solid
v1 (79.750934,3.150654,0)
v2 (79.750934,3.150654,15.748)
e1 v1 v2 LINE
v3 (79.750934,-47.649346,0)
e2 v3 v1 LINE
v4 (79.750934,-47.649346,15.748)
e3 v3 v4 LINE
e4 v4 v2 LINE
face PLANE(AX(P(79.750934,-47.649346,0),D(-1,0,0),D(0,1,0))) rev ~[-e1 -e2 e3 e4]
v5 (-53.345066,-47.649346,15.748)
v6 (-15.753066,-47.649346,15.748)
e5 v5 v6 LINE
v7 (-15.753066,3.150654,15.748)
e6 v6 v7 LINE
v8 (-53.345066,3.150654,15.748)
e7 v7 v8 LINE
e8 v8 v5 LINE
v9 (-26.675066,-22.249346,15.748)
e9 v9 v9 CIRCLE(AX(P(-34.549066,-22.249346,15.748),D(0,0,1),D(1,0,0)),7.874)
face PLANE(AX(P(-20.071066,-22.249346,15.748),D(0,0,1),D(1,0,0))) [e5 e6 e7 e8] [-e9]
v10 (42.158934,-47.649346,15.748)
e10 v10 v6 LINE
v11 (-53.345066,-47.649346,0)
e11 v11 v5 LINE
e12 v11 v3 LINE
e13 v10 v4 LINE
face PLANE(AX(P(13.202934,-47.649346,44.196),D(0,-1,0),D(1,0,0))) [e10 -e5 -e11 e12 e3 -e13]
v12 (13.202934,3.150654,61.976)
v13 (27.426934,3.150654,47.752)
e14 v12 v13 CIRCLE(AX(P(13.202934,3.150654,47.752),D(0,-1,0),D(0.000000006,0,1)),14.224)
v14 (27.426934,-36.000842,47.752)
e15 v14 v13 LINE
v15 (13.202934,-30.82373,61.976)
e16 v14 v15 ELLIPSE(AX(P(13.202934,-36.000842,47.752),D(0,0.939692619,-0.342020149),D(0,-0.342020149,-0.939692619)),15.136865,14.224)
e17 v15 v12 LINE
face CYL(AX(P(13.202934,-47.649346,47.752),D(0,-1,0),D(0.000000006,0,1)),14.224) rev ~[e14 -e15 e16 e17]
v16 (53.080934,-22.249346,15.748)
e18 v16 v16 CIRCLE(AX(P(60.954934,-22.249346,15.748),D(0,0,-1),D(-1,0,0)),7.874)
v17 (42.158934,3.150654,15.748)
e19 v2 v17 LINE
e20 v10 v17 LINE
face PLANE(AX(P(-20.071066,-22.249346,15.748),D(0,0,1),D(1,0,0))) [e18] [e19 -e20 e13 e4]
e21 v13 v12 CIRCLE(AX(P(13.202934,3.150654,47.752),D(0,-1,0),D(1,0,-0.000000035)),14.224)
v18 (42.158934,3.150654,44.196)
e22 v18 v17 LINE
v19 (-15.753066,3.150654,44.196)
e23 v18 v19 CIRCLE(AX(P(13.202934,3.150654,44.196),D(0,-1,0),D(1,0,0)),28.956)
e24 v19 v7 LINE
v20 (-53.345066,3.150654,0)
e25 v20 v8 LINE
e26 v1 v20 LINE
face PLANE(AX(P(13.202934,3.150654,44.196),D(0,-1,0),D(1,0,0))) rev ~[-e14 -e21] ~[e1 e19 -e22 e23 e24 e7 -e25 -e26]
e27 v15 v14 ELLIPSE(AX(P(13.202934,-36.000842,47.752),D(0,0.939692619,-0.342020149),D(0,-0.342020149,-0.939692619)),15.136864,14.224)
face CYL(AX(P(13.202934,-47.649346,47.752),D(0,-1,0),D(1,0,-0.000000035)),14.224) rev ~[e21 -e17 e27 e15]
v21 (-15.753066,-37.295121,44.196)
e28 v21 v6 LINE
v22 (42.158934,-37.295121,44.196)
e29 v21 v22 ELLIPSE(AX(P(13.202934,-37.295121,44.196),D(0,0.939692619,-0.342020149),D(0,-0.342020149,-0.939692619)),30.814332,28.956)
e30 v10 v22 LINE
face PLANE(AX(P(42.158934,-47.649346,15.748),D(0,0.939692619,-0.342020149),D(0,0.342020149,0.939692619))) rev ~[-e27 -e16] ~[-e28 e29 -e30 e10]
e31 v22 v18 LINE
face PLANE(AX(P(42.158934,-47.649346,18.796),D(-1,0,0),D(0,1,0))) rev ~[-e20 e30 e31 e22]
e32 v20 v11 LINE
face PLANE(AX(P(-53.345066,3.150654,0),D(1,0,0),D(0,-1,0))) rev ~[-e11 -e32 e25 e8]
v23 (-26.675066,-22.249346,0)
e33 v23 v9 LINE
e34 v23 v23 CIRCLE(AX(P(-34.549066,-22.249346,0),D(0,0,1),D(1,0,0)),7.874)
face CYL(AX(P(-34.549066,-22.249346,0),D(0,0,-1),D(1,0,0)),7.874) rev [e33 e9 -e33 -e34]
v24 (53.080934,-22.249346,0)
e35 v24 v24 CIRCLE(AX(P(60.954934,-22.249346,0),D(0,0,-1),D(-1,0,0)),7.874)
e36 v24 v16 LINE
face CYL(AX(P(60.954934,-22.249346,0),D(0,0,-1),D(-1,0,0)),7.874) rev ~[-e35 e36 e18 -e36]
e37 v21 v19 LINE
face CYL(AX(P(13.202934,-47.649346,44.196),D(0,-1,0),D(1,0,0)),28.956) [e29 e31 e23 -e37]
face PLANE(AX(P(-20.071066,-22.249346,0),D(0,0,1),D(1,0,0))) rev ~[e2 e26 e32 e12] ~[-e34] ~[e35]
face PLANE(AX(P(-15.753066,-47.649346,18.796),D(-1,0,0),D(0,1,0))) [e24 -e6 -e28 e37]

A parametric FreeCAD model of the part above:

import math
import FreeCAD as App
import Part
import Sketcher
Q = App.Units.Quantity

doc = App.newDocument("Part")
body = doc.addObject("PartDesign::Body", "Body")

# Sketch on XY plane
sketch1 = doc.addObject("Sketcher::SketchObject", "Sketch")
body.addObject(sketch1)
sketch1.AttachmentSupport = (doc.XY_Plane, [""])
sketch1.MapMode = "FlatFace"
sketch1.addGeometry(Part.LineSegment(App.Vector(-53, 3, 0), App.Vector(-53, -48, 0)), False)
sketch1.addGeometry(Part.LineSegment(App.Vector(-53, -48, 0), App.Vector(80, -48, 0)), False)
sketch1.addGeometry(Part.LineSegment(App.Vector(80, -48, 0), App.Vector(80, 3, 0)), False)
sketch1.addGeometry(Part.LineSegment(App.Vector(80, 3, 0), App.Vector(-53, 3, 0)), False)
sketch1.addGeometry(Part.Circle(App.Vector(61, -22, 0), App.Vector(0, 0, 1), 8), False)
sketch1.addGeometry(Part.Circle(App.Vector(-35, -22, 0), App.Vector(0, 0, 1), 8), False)
sketch1.addConstraint(Sketcher.Constraint("Coincident", 0, 2, 1, 1))
sketch1.addConstraint(Sketcher.Constraint("Coincident", 1, 2, 2, 1))
sketch1.addConstraint(Sketcher.Constraint("Coincident", 2, 2, 3, 1))
sketch1.addConstraint(Sketcher.Constraint("Coincident", 3, 2, 0, 1))
sketch1.addConstraint(Sketcher.Constraint("Vertical", 0))
sketch1.addConstraint(Sketcher.Constraint("Horizontal", 1))
sketch1.addConstraint(Sketcher.Constraint("Vertical", 2))
sketch1.addConstraint(Sketcher.Constraint("Horizontal", 3))
sketch1.addConstraint(Sketcher.Constraint("Equal", 4, 5))
sketch1.addConstraint(Sketcher.Constraint("Horizontal", 4, 3, 5, 3))
sketch1.addConstraint(Sketcher.Constraint("Diameter", 4, Q("0.62 in")))
sketch1.addConstraint(Sketcher.Constraint("DistanceY", 0, 2, 0, 1, Q("2 in")))
sketch1.addConstraint(Sketcher.Constraint("DistanceY", 0, 2, 5, 3, Q("1 in")))
sketch1.addConstraint(Sketcher.Constraint("DistanceX", 1, 1, 1, 2, Q("5.24 in")))
sketch1.addConstraint(Sketcher.Constraint("DistanceX", 0, 2, 4, 3, Q("4.5 in")))
sketch1.addConstraint(Sketcher.Constraint("DistanceX", 5, 3, 1, 2, Q("4.5 in")))
sketch1.addConstraint(Sketcher.Constraint("DistanceX", -1, 1, 4, 3, Q("60.954934 mm")))
sketch1.addConstraint(Sketcher.Constraint("DistanceY", 4, 3, -1, 1, Q("22.249346 mm")))
pad1 = doc.addObject("PartDesign::Pad", "Pad")
body.addObject(pad1)
pad1.Profile = sketch1
pad1.Length = Q("0.62 in")

# Sketch on XY plane
sketch2 = doc.addObject("Sketcher::SketchObject", "Sketch001")
body.addObject(sketch2)
sketch2.AttachmentSupport = (doc.XY_Plane, [""])
sketch2.MapMode = "FlatFace"
sketch2.AttachmentOffset = App.Placement(App.Vector(0, 0, 0.62 * 25.4), App.Rotation())
sketch2.addGeometry(Part.LineSegment(App.Vector(-16, 3, 0), App.Vector(-16, -48, 0)), False)
sketch2.addGeometry(Part.LineSegment(App.Vector(-16, -48, 0), App.Vector(42, -48, 0)), False)
sketch2.addGeometry(Part.LineSegment(App.Vector(42, -48, 0), App.Vector(42, 3, 0)), False)
sketch2.addGeometry(Part.LineSegment(App.Vector(42, 3, 0), App.Vector(-16, 3, 0)), False)
sketch2.addConstraint(Sketcher.Constraint("Coincident", 0, 2, 1, 1))
sketch2.addConstraint(Sketcher.Constraint("Coincident", 1, 2, 2, 1))
sketch2.addConstraint(Sketcher.Constraint("Coincident", 2, 2, 3, 1))
sketch2.addConstraint(Sketcher.Constraint("Coincident", 3, 2, 0, 1))
sketch2.addConstraint(Sketcher.Constraint("Vertical", 0))
sketch2.addConstraint(Sketcher.Constraint("Horizontal", 1))
sketch2.addConstraint(Sketcher.Constraint("Vertical", 2))
sketch2.addConstraint(Sketcher.Constraint("Horizontal", 3))
sketch2.addConstraint(Sketcher.Constraint("DistanceY", 0, 2, 0, 1, Q("2 in")))
sketch2.addConstraint(Sketcher.Constraint("DistanceX", 1, 1, 1, 2, Q("2.28 in")))
sketch2.addConstraint(Sketcher.Constraint("DistanceX", 0, 2, -1, 1, Q("15.753066 mm")))
sketch2.addConstraint(Sketcher.Constraint("DistanceY", 0, 2, -1, 1, Q("47.649346 mm")))
pad2 = doc.addObject("PartDesign::Pad", "Pad001")
body.addObject(pad2)
pad2.Profile = sketch2
pad2.Length = Q("0.12 in")

# Sketch on XY plane
sketch3 = doc.addObject("Sketcher::SketchObject", "Sketch002")
body.addObject(sketch3)
sketch3.AttachmentSupport = (doc.XY_Plane, [""])
sketch3.MapMode = "FlatFace"
sketch3.AttachmentOffset = App.Placement(App.Vector(0, 0, 0.74 * 25.4), App.Rotation())
sketch3.addGeometry(Part.LineSegment(App.Vector(-16, 3, 0), App.Vector(-16, -48, 0)), False)
sketch3.addGeometry(Part.LineSegment(App.Vector(-16, -48, 0), App.Vector(42, -48, 0)), False)
sketch3.addGeometry(Part.LineSegment(App.Vector(42, -48, 0), App.Vector(42, 3, 0)), False)
sketch3.addGeometry(Part.LineSegment(App.Vector(42, 3, 0), App.Vector(-16, 3, 0)), False)
sketch3.addConstraint(Sketcher.Constraint("Coincident", 0, 2, 1, 1))
sketch3.addConstraint(Sketcher.Constraint("Coincident", 1, 2, 2, 1))
sketch3.addConstraint(Sketcher.Constraint("Coincident", 2, 2, 3, 1))
sketch3.addConstraint(Sketcher.Constraint("Coincident", 3, 2, 0, 1))
sketch3.addConstraint(Sketcher.Constraint("Vertical", 0))
sketch3.addConstraint(Sketcher.Constraint("Horizontal", 1))
sketch3.addConstraint(Sketcher.Constraint("Vertical", 2))
sketch3.addConstraint(Sketcher.Constraint("Horizontal", 3))
sketch3.addConstraint(Sketcher.Constraint("DistanceY", 0, 2, 0, 1, Q("2 in")))
sketch3.addConstraint(Sketcher.Constraint("DistanceX", 1, 1, 1, 2, Q("2.28 in")))
sketch3.addConstraint(Sketcher.Constraint("DistanceX", 0, 2, -1, 1, Q("15.753066 mm")))
sketch3.addConstraint(Sketcher.Constraint("DistanceY", 0, 2, -1, 1, Q("47.649346 mm")))
pad3 = doc.addObject("PartDesign::Pad", "Pad002")
body.addObject(pad3)
pad3.Profile = sketch3
pad3.Length = Q("1 in")

# Sketch on XZ plane
sketch4 = doc.addObject("Sketcher::SketchObject", "Sketch003")
body.addObject(sketch4)
sketch4.AttachmentSupport = (doc.XZ_Plane, [""])
sketch4.MapMode = "FlatFace"
sketch4.AttachmentOffset = App.Placement(App.Vector(0, 0, 47.649346), App.Rotation())
sketch4.addGeometry(Part.Circle(App.Vector(13, 44, 0), App.Vector(0, 0, 1), 29), False)
sketch4.addConstraint(Sketcher.Constraint("Diameter", 0, Q("2.28 in")))
sketch4.addConstraint(Sketcher.Constraint("DistanceY", -1, 1, 0, 3, Q("1.74 in")))
sketch4.addConstraint(Sketcher.Constraint("DistanceX", -1, 1, 0, 3, Q("13.202934 mm")))
pad4 = doc.addObject("PartDesign::Pad", "Pad003")
body.addObject(pad4)
pad4.Profile = sketch4
pad4.Length = Q("2 in")
pad4.Reversed = True

# Sketch on XZ plane
sketch5 = doc.addObject("Sketcher::SketchObject", "Sketch004")
body.addObject(sketch5)
sketch5.AttachmentSupport = (doc.XZ_Plane, [""])
sketch5.MapMode = "FlatFace"
sketch5.AttachmentOffset = App.Placement(App.Vector(0, 0, 47.649346), App.Rotation())
sketch5.addGeometry(Part.ArcOfCircle(Part.Circle(App.Vector(13, 48, 0), App.Vector(0, 0, 1), 14), math.radians(90), math.radians(360)), False)
sketch5.addGeometry(Part.ArcOfCircle(Part.Circle(App.Vector(13, 48, 0), App.Vector(0, 0, 1), 14), math.radians(0), math.radians(90)), False)
sketch5.addConstraint(Sketcher.Constraint("Tangent", 0, 1, 1, 2))
sketch5.addConstraint(Sketcher.Constraint("Coincident", 1, 1, 0, 2))
sketch5.addConstraint(Sketcher.Constraint("Horizontal", 0, 3, 1, 1))
sketch5.addConstraint(Sketcher.Constraint("Vertical", 1, 3, 0, 1))
sketch5.addConstraint(Sketcher.Constraint("Radius", 0, Q("0.56 in")))
sketch5.addConstraint(Sketcher.Constraint("DistanceY", -1, 1, 0, 3, Q("1.88 in")))
sketch5.addConstraint(Sketcher.Constraint("DistanceX", -1, 1, 0, 3, Q("13.202934 mm")))
pocket1 = doc.addObject("PartDesign::Pocket", "Pocket")
body.addObject(pocket1)
pocket1.Profile = sketch5
pocket1.Length = Q("2 in")

# Sketch on YZ plane
sketch6 = doc.addObject("Sketcher::SketchObject", "Sketch005")
body.addObject(sketch6)
sketch6.AttachmentSupport = (doc.YZ_Plane, [""])
sketch6.MapMode = "FlatFace"
sketch6.AttachmentOffset = App.Placement(App.Vector(0, 0, 42.158934), App.Rotation())
sketch6.addGeometry(Part.LineSegment(App.Vector(-48, 74, 0), App.Vector(-48, 16, 0)), False)
sketch6.addGeometry(Part.LineSegment(App.Vector(-48, 16, 0), App.Vector(-27, 74, 0)), False)
sketch6.addGeometry(Part.LineSegment(App.Vector(-27, 74, 0), App.Vector(-48, 74, 0)), False)
sketch6.addConstraint(Sketcher.Constraint("Coincident", 0, 2, 1, 1))
sketch6.addConstraint(Sketcher.Constraint("Coincident", 1, 2, 2, 1))
sketch6.addConstraint(Sketcher.Constraint("Coincident", 2, 2, 0, 1))
sketch6.addConstraint(Sketcher.Constraint("Vertical", 0))
sketch6.addConstraint(Sketcher.Constraint("Horizontal", 2))
sketch6.addConstraint(Sketcher.Constraint("Angle", 1, Q("70 deg")))
sketch6.addConstraint(Sketcher.Constraint("DistanceY", -1, 1, 0, 2, Q("0.62 in")))
sketch6.addConstraint(Sketcher.Constraint("DistanceX", 2, 2, 2, 1, Q("21.046407 mm")))
sketch6.addConstraint(Sketcher.Constraint("DistanceX", 1, 2, -1, 1, Q("26.602939 mm")))
pocket2 = doc.addObject("PartDesign::Pocket", "Pocket001")
body.addObject(pocket2)
pocket2.Profile = sketch6
pocket2.Length = Q("7 in")

doc.recompute()
